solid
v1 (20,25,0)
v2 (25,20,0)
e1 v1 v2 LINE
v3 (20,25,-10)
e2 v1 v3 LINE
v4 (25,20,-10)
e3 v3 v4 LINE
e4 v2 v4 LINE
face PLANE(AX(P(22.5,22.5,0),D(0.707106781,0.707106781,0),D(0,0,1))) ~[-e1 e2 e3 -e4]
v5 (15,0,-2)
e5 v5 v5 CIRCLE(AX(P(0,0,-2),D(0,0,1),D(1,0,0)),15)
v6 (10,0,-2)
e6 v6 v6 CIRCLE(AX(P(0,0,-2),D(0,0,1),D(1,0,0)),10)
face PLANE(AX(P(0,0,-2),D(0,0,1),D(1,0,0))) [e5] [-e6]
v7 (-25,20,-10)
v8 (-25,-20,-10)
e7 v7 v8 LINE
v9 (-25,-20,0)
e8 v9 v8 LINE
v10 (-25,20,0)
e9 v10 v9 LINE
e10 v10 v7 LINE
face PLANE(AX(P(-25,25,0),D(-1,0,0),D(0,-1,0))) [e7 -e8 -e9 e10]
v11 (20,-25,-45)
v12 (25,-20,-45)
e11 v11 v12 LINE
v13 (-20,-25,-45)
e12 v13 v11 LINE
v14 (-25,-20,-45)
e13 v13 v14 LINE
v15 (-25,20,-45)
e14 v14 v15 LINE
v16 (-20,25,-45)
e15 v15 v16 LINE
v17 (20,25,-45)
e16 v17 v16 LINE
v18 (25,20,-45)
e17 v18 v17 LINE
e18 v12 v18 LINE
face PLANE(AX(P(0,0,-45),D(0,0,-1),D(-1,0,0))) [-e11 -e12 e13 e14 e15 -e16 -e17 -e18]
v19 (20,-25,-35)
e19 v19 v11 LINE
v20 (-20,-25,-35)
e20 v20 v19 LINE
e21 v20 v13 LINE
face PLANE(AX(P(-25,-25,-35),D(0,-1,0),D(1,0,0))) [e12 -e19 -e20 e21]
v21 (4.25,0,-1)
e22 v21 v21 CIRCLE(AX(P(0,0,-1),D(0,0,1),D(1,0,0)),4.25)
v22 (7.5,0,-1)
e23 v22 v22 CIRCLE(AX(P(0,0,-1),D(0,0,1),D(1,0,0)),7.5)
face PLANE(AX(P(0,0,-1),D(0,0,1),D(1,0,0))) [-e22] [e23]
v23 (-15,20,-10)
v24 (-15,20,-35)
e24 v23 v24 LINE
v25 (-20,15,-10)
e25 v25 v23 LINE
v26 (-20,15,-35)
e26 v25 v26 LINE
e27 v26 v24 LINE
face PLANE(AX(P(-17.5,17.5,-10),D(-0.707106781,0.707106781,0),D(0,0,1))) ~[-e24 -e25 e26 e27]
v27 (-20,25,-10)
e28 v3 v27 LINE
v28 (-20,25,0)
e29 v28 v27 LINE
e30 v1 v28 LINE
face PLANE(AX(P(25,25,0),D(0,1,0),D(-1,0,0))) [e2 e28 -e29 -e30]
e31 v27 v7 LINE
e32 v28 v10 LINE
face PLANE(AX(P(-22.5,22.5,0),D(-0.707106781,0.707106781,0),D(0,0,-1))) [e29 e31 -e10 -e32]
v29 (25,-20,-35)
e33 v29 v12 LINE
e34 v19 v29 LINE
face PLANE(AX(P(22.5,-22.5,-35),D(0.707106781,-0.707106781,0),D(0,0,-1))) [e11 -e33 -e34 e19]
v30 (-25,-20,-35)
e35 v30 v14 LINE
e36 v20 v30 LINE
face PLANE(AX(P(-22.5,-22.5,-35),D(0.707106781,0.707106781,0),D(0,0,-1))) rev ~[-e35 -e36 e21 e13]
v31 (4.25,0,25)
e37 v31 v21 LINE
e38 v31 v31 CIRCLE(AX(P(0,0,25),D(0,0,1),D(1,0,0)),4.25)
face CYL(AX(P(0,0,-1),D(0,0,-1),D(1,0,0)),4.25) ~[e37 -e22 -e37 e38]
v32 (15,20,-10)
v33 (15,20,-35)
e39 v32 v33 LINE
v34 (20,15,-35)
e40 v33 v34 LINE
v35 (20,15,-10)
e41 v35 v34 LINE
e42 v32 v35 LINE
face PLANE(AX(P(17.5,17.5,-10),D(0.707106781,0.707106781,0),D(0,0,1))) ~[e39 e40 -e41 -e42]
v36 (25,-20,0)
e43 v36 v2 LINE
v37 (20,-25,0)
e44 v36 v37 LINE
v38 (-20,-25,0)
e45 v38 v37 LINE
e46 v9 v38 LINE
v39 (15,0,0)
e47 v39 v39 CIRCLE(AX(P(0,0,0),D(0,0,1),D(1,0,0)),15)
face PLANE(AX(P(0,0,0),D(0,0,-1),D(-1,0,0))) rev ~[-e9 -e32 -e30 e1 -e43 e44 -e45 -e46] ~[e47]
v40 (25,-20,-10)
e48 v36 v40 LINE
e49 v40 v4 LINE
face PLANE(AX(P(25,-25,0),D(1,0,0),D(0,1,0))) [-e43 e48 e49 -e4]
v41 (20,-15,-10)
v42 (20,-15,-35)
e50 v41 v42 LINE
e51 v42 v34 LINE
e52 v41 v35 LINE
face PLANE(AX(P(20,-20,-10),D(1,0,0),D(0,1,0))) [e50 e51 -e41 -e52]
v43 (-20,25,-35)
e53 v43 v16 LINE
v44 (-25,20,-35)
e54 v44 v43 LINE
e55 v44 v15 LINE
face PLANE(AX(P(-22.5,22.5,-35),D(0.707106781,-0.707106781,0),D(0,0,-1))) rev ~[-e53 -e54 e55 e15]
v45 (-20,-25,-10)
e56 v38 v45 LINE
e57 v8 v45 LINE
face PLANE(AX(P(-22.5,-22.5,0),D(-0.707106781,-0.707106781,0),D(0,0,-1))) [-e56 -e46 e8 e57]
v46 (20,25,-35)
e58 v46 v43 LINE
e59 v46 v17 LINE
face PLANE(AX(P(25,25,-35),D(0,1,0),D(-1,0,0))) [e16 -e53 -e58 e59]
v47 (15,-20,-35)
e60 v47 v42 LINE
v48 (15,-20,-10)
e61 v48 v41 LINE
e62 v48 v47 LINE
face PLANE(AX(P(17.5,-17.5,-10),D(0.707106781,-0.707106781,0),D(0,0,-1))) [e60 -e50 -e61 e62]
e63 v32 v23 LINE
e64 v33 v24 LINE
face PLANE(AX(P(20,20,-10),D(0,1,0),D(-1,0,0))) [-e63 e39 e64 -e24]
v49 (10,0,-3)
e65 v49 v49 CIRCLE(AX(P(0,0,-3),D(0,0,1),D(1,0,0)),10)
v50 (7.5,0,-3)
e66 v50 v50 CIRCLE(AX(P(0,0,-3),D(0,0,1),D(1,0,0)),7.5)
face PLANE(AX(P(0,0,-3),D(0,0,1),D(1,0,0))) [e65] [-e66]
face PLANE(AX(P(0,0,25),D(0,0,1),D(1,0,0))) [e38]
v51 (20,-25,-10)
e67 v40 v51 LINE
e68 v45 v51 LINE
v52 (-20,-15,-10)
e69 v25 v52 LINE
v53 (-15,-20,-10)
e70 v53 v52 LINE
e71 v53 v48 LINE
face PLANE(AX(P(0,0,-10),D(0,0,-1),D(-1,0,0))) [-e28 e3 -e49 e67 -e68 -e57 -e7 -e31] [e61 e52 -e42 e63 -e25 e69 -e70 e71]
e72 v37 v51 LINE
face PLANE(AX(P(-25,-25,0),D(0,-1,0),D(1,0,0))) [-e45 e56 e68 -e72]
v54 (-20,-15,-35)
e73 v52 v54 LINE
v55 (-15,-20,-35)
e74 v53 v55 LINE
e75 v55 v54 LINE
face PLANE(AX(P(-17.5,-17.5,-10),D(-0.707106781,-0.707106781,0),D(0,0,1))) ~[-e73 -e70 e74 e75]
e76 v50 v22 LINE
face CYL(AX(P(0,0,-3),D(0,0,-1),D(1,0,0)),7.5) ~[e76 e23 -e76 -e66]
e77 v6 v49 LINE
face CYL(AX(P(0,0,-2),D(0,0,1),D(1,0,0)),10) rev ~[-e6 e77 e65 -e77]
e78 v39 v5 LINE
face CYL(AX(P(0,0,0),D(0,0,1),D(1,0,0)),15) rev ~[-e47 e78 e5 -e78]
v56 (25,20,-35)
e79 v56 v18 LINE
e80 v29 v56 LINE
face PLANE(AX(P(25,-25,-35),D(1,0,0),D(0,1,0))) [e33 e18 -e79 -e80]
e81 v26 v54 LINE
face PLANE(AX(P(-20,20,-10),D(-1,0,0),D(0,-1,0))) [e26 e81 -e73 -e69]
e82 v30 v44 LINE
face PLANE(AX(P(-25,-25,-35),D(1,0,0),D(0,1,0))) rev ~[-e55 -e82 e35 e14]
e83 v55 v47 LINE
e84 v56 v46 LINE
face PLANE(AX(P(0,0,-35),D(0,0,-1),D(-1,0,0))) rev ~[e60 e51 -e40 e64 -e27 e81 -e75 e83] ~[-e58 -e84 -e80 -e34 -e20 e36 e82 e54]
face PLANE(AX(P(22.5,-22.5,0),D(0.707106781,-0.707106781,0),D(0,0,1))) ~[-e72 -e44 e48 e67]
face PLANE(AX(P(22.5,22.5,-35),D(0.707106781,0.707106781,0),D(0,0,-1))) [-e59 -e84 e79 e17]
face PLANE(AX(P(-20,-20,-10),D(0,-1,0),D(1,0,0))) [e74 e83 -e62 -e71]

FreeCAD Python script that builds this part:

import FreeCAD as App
import Part
import Sketcher

V = App.Vector
Q = App.Units.Quantity


def edges_at(feature, points):
    """Names of the edges that pass closest to the given points."""
    edges = feature.Shape.Edges
    near = lambda p: min(range(len(edges)), key=lambda i: edges[i].distToShape(Part.Vertex(*p))[0])
    return sorted({f"Edge{near(p) + 1}" for p in points})

doc = App.newDocument("Part")
body = doc.addObject("PartDesign::Body", "Body")
body.AllowCompound = True

# Sketch on XY plane
sketch1 = body.newObject("Sketcher::SketchObject", "Sketch")
sketch1.AttachmentSupport = (doc.getObject("XY_Plane"), [""])
sketch1.MapMode = "FlatFace"
sketch1.addGeometry(Part.Circle(V(0, 0, 0), V(0, 0, 1), 4.2), False)
sketch1.addConstraint([
    Sketcher.Constraint("Coincident", 0, 3, -1, 1),
    Sketcher.Constraint("Diameter", 0, Q("8.5 mm")),
])
pad1 = body.newObject("PartDesign::Pad", "Pad")
pad1.Profile = sketch1
pad1.Length = 25

# Sketch on XY plane
sketch2 = body.newObject("Sketcher::SketchObject", "Sketch001")
sketch2.AttachmentSupport = (doc.getObject("XY_Plane"), [""])
sketch2.MapMode = "FlatFace"
sketch2.addGeometry([
    Part.LineSegment(V(-25, 25, 0), V(25, 25, 0)),
    Part.LineSegment(V(25, 25, 0), V(25, -25, 0)),
    Part.LineSegment(V(25, -25, 0), V(-25, -25, 0)),
    Part.LineSegment(V(-25, -25, 0), V(-25, 25, 0)),
], False)
sketch2.addConstraint([
    Sketcher.Constraint("Coincident", 0, 2, 1, 1),
    Sketcher.Constraint("Coincident", 1, 2, 2, 1),
    Sketcher.Constraint("Coincident", 2, 2, 3, 1),
    Sketcher.Constraint("Coincident", 3, 2, 0, 1),
    Sketcher.Constraint("Horizontal", 0),
    Sketcher.Constraint("Vertical", 1),
    Sketcher.Constraint("Horizontal", 2),
    Sketcher.Constraint("Vertical", 3),
    Sketcher.Constraint("Symmetric", 0, 2, 2, 2, -1, 1),
    Sketcher.Constraint("Equal", 2, 1),
    Sketcher.Constraint("DistanceX", 0, 1, 0, 2, Q("50 mm")),
])
pad2 = body.newObject("PartDesign::Pad", "Pad001")
pad2.Profile = sketch2
pad2.Length = 10
pad2.Reversed = True

# Sketch on XY plane
sketch3 = body.newObject("Sketcher::SketchObject", "Sketch002")
sketch3.AttachmentSupport = (doc.getObject("XY_Plane"), [""])
sketch3.MapMode = "FlatFace"
sketch3.addGeometry(Part.Circle(V(0, 0, 0), V(0, 0, 1), 15), False)
sketch3.addConstraint([
    Sketcher.Constraint("Coincident", 0, 3, -1, 1),
    Sketcher.Constraint("Diameter", 0, Q("30 mm")),
])
pocket1 = body.newObject("PartDesign::Pocket", "Pocket")
pocket1.Profile = sketch3
pocket1.Length = 2

# Sketch on XY plane
sketch4 = body.newObject("Sketcher::SketchObject", "Sketch003")
sketch4.AttachmentSupport = (doc.getObject("XY_Plane"), [""])
sketch4.MapMode = "FlatFace"
sketch4.AttachmentOffset = App.Placement(V(0, 0, -2), App.Rotation())
sketch4.addGeometry(Part.Circle(V(0, 0, 0), V(0, 0, 1), 10), False)
sketch4.addConstraint([
    Sketcher.Constraint("Coincident", 0, 3, -1, 1),
    Sketcher.Constraint("Diameter", 0, Q("20 mm")),
])
pocket2 = body.newObject("PartDesign::Pocket", "Pocket001")
pocket2.Profile = sketch4
pocket2.Length = 1

# Sketch on XY plane
sketch5 = body.newObject("Sketcher::SketchObject", "Sketch004")
sketch5.AttachmentSupport = (doc.getObject("XY_Plane"), [""])
sketch5.MapMode = "FlatFace"
sketch5.AttachmentOffset = App.Placement(V(0, 0, -3), App.Rotation())
sketch5.addGeometry(Part.Circle(V(0, 0, 0), V(0, 0, 1), 8), False)
sketch5.addConstraint([
    Sketcher.Constraint("Coincident", 0, 3, -1, 1),
    Sketcher.Constraint("Diameter", 0, Q("15 mm")),
])
pad3 = body.newObject("PartDesign::Pad", "Pad002")
pad3.Profile = sketch5
pad3.Length = 2

# Sketch on XY plane
sketch6 = body.newObject("Sketcher::SketchObject", "Sketch005")
sketch6.AttachmentSupport = (doc.getObject("XY_Plane"), [""])
sketch6.MapMode = "FlatFace"
sketch6.AttachmentOffset = App.Placement(V(0, 0, -1), App.Rotation())
sketch6.addGeometry(Part.Circle(V(0, 0, 0), V(0, 0, 1), 4.2), False)
sketch6.addConstraint([
    Sketcher.Constraint("Coincident", 0, 3, -1, 1),
    Sketcher.Constraint("Diameter", 0, Q("8.5 mm")),
])
pad4 = body.newObject("PartDesign::Pad", "Pad003")
pad4.Profile = sketch6
pad4.Length = 2

# Sketch on XY plane
sketch7 = body.newObject("Sketcher::SketchObject", "Sketch006")
sketch7.AttachmentSupport = (doc.getObject("XY_Plane"), [""])
sketch7.MapMode = "FlatFace"
sketch7.AttachmentOffset = App.Placement(V(0, 0, -10), App.Rotation())
sketch7.addGeometry([
    Part.LineSegment(V(-20, 20, 0), V(20, 20, 0)),
    Part.LineSegment(V(20, 20, 0), V(20, -20, 0)),
    Part.LineSegment(V(20, -20, 0), V(-20, -20, 0)),
    Part.LineSegment(V(-20, -20, 0), V(-20, 20, 0)),
], False)
sketch7.addConstraint([
    Sketcher.Constraint("Coincident", 0, 2, 1, 1),
    Sketcher.Constraint("Coincident", 1, 2, 2, 1),
    Sketcher.Constraint("Coincident", 2, 2, 3, 1),
    Sketcher.Constraint("Coincident", 3, 2, 0, 1),
    Sketcher.Constraint("Horizontal", 0),
    Sketcher.Constraint("Vertical", 1),
    Sketcher.Constraint("Horizontal", 2),
    Sketcher.Constraint("Vertical", 3),
    Sketcher.Constraint("Symmetric", 0, 2, 2, 2, -1, 1),
    Sketcher.Constraint("Equal", 2, 1),
    Sketcher.Constraint("DistanceX", 0, 1, 0, 2, Q("40 mm")),
])
pad5 = body.newObject("PartDesign::Pad", "Pad004")
pad5.Profile = sketch7
pad5.Length = 25
pad5.Reversed = True

# Sketch on XY plane
sketch8 = body.newObject("Sketcher::SketchObject", "Sketch007")
sketch8.AttachmentSupport = (doc.getObject("XY_Plane"), [""])
sketch8.MapMode = "FlatFace"
sketch8.AttachmentOffset = App.Placement(V(0, 0, -35), App.Rotation())
sketch8.addGeometry([
    Part.LineSegment(V(25, -25, 0), V(-25, -25, 0)),
    Part.LineSegment(V(-25, -25, 0), V(-25, 25, 0)),
    Part.LineSegment(V(-25, 25, 0), V(25, 25, 0)),
    Part.LineSegment(V(25, 25, 0), V(25, -25, 0)),
], False)
sketch8.addConstraint([
    Sketcher.Constraint("Coincident", 0, 2, 1, 1),
    Sketcher.Constraint("Coincident", 1, 2, 2, 1),
    Sketcher.Constraint("Coincident", 2, 2, 3, 1),
    Sketcher.Constraint("Coincident", 3, 2, 0, 1),
    Sketcher.Constraint("Horizontal", 0),
    Sketcher.Constraint("Vertical", 1),
    Sketcher.Constraint("Horizontal", 2),
    Sketcher.Constraint("Vertical", 3),
    Sketcher.Constraint("Symmetric", 0, 2, 2, 2, -1, 1),
    Sketcher.Constraint("Equal", 2, 1),
    Sketcher.Constraint("DistanceX", 0, 2, 0, 1, Q("50 mm")),
])
pad6 = body.newObject("PartDesign::Pad", "Pad005")
pad6.Profile = sketch8
pad6.Length = 10
pad6.Reversed = True
doc.recompute()

chamfer = body.newObject("PartDesign::Chamfer", "Chamfer")
chamfer.Base = (pad6, edges_at(pad6, [
    (20, -20, -22.5),
    (25, -25, -5),
    (25, -25, -40),
    (-25, -25, -40),
    (-20, -20, -22.5),
    (-25, -25, -5),
    (25, 25, -5),
    (20, 20, -22.5),
    (25, 25, -40),
    (-20, 20, -22.5),
    (-25, 25, -5),
    (-25, 25, -40),
]))
chamfer.Size = 5

doc.recompute()
